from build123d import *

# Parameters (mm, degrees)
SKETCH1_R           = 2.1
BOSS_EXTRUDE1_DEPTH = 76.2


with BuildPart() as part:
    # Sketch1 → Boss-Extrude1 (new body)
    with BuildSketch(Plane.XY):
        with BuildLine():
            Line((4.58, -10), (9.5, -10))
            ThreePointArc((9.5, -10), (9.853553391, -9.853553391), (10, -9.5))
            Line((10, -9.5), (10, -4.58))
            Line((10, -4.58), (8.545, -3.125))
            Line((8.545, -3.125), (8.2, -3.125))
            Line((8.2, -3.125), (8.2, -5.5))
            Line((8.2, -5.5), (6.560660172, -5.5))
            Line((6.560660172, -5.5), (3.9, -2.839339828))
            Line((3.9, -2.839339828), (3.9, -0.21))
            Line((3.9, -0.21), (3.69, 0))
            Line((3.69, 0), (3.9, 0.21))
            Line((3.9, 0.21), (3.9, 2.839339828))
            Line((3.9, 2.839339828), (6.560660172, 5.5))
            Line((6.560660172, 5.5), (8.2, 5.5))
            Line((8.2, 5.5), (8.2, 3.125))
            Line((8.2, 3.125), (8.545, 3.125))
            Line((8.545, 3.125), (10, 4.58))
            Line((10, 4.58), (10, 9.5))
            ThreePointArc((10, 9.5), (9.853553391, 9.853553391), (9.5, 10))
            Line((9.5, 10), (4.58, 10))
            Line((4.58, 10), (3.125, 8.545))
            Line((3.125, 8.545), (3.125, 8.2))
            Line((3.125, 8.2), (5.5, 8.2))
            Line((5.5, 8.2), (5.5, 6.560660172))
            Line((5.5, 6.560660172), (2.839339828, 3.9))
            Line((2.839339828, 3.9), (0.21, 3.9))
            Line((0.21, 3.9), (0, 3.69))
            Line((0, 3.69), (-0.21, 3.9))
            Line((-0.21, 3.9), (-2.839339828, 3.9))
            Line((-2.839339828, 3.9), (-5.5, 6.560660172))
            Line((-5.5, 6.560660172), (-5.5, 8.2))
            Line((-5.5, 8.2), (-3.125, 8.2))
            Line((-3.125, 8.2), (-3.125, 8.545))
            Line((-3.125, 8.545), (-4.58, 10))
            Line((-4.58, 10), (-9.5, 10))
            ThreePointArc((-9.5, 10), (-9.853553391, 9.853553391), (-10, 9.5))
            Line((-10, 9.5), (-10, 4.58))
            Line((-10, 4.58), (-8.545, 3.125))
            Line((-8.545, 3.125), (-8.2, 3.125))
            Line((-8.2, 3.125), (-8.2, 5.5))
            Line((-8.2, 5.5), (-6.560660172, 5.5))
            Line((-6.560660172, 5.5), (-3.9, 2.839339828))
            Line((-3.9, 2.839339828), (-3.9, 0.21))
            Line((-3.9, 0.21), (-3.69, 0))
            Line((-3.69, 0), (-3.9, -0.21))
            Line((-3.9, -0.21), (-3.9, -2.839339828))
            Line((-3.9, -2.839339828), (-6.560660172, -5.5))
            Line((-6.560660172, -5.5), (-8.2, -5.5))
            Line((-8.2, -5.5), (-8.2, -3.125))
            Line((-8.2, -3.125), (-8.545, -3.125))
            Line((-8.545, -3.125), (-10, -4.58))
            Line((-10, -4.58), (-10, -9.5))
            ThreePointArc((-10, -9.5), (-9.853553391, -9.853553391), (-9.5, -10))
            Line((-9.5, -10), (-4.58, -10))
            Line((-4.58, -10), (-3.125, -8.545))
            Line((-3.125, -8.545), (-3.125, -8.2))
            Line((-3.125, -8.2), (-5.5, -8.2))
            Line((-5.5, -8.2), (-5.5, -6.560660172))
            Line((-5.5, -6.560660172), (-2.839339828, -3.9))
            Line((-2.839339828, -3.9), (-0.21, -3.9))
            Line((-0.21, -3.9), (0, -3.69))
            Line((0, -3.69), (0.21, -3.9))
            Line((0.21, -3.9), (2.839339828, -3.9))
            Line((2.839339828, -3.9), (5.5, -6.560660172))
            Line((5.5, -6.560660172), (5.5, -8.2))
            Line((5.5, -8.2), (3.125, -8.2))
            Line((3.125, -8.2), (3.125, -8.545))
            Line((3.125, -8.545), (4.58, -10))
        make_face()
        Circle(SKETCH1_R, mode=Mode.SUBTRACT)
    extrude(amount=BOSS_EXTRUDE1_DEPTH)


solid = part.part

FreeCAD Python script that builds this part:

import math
import FreeCAD as App
import Part
import Sketcher
Q = App.Units.Quantity

doc = App.newDocument("Part")
body = doc.addObject("PartDesign::Body", "Body")

# Sketch on XY plane
sketch1 = body.newObject("Sketcher::SketchObject", "Sketch")
sketch1.AttachmentSupport = (doc.getObject("XY_Plane"), [""])
sketch1.MapMode = "FlatFace"
sketch1.addGeometry(Part.LineSegment(App.Vector(4.58, -10, 0), App.Vector(9.5, -10, 0)), False)
sketch1.addGeometry(Part.ArcOfCircle(Part.Circle(App.Vector(9.5, -9.5, 0), App.Vector(0, 0, 1), 0.5), math.radians(-90), math.radians(0)), False)
sketch1.addGeometry(Part.LineSegment(App.Vector(10, -9.5, 0), App.Vector(10, -4.58, 0)), False)
sketch1.addGeometry(Part.LineSegment(App.Vector(10, -4.58, 0), App.Vector(8.54, -3.12, 0)), False)
sketch1.addGeometry(Part.LineSegment(App.Vector(8.54, -3.12, 0), App.Vector(8.2, -3.12, 0)), False)
sketch1.addGeometry(Part.LineSegment(App.Vector(8.2, -3.12, 0), App.Vector(8.2, -5.5, 0)), False)
sketch1.addGeometry(Part.LineSegment(App.Vector(8.2, -5.5, 0), App.Vector(6.56, -5.5, 0)), False)
sketch1.addGeometry(Part.LineSegment(App.Vector(6.56, -5.5, 0), App.Vector(3.9, -2.84, 0)), False)
sketch1.addGeometry(Part.LineSegment(App.Vector(3.9, -2.84, 0), App.Vector(3.9, -0.21, 0)), False)
sketch1.addGeometry(Part.LineSegment(App.Vector(3.9, -0.21, 0), App.Vector(3.69, 0, 0)), False)
sketch1.addGeometry(Part.LineSegment(App.Vector(3.69, 0, 0), App.Vector(3.9, 0.21, 0)), False)
sketch1.addGeometry(Part.LineSegment(App.Vector(3.9, 0.21, 0), App.Vector(3.9, 2.84, 0)), False)
sketch1.addGeometry(Part.LineSegment(App.Vector(3.9, 2.84, 0), App.Vector(6.56, 5.5, 0)), False)
sketch1.addGeometry(Part.LineSegment(App.Vector(6.56, 5.5, 0), App.Vector(8.2, 5.5, 0)), False)
sketch1.addGeometry(Part.LineSegment(App.Vector(8.2, 5.5, 0), App.Vector(8.2, 3.12, 0)), False)
sketch1.addGeometry(Part.LineSegment(App.Vector(8.2, 3.12, 0), App.Vector(8.54, 3.12, 0)), False)
sketch1.addGeometry(Part.LineSegment(App.Vector(8.54, 3.12, 0), App.Vector(10, 4.58, 0)), False)
sketch1.addGeometry(Part.LineSegment(App.Vector(10, 4.58, 0), App.Vector(10, 9.5, 0)), False)
sketch1.addGeometry(Part.ArcOfCircle(Part.Circle(App.Vector(9.5, 9.5, 0), App.Vector(0, 0, 1), 0.5), math.radians(0), math.radians(90)), False)
sketch1.addGeometry(Part.LineSegment(App.Vector(9.5, 10, 0), App.Vector(4.58, 10, 0)), False)
sketch1.addGeometry(Part.LineSegment(App.Vector(4.58, 10, 0), App.Vector(3.12, 8.54, 0)), False)
sketch1.addGeometry(Part.LineSegment(App.Vector(3.12, 8.54, 0), App.Vector(3.12, 8.2, 0)), False)
sketch1.addGeometry(Part.LineSegment(App.Vector(3.12, 8.2, 0), App.Vector(5.5, 8.2, 0)), False)
sketch1.addGeometry(Part.LineSegment(App.Vector(5.5, 8.2, 0), App.Vector(5.5, 6.56, 0)), False)
sketch1.addGeometry(Part.LineSegment(App.Vector(5.5, 6.56, 0), App.Vector(2.84, 3.9, 0)), False)
sketch1.addGeometry(Part.LineSegment(App.Vector(2.84, 3.9, 0), App.Vector(0.21, 3.9, 0)), False)
sketch1.addGeometry(Part.LineSegment(App.Vector(0.21, 3.9, 0), App.Vector(0, 3.69, 0)), False)
sketch1.addGeometry(Part.LineSegment(App.Vector(0, 3.69, 0), App.Vector(-0.21, 3.9, 0)), False)
sketch1.addGeometry(Part.LineSegment(App.Vector(-0.21, 3.9, 0), App.Vector(-2.84, 3.9, 0)), False)
sketch1.addGeometry(Part.LineSegment(App.Vector(-2.84, 3.9, 0), App.Vector(-5.5, 6.56, 0)), False)
sketch1.addGeometry(Part.LineSegment(App.Vector(-5.5, 6.56, 0), App.Vector(-5.5, 8.2, 0)), False)
sketch1.addGeometry(Part.LineSegment(App.Vector(-5.5, 8.2, 0), App.Vector(-3.12, 8.2, 0)), False)
sketch1.addGeometry(Part.LineSegment(App.Vector(-3.12, 8.2, 0), App.Vector(-3.12, 8.54, 0)), False)
sketch1.addGeometry(Part.LineSegment(App.Vector(-3.12, 8.54, 0), App.Vector(-4.58, 10, 0)), False)
sketch1.addGeometry(Part.LineSegment(App.Vector(-4.58, 10, 0), App.Vector(-9.5, 10, 0)), False)
sketch1.addGeometry(Part.ArcOfCircle(Part.Circle(App.Vector(-9.5, 9.5, 0), App.Vector(0, 0, 1), 0.5), math.radians(90), math.radians(180)), False)
sketch1.addGeometry(Part.LineSegment(App.Vector(-10, 9.5, 0), App.Vector(-10, 4.58, 0)), False)
sketch1.addGeometry(Part.LineSegment(App.Vector(-10, 4.58, 0), App.Vector(-8.54, 3.12, 0)), False)
sketch1.addGeometry(Part.LineSegment(App.Vector(-8.54, 3.12, 0), App.Vector(-8.2, 3.12, 0)), False)
sketch1.addGeometry(Part.LineSegment(App.Vector(-8.2, 3.12, 0), App.Vector(-8.2, 5.5, 0)), False)
sketch1.addGeometry(Part.LineSegment(App.Vector(-8.2, 5.5, 0), App.Vector(-6.56, 5.5, 0)), False)
sketch1.addGeometry(Part.LineSegment(App.Vector(-6.56, 5.5, 0), App.Vector(-3.9, 2.84, 0)), False)
sketch1.addGeometry(Part.LineSegment(App.Vector(-3.9, 2.84, 0), App.Vector(-3.9, 0.21, 0)), False)
sketch1.addGeometry(Part.LineSegment(App.Vector(-3.9, 0.21, 0), App.Vector(-3.69, 0, 0)), False)
sketch1.addGeometry(Part.LineSegment(App.Vector(-3.69, 0, 0), App.Vector(-3.9, -0.21, 0)), False)
sketch1.addGeometry(Part.LineSegment(App.Vector(-3.9, -0.21, 0), App.Vector(-3.9, -2.84, 0)), False)
sketch1.addGeometry(Part.LineSegment(App.Vector(-3.9, -2.84, 0), App.Vector(-6.56, -5.5, 0)), False)
sketch1.addGeometry(Part.LineSegment(App.Vector(-6.56, -5.5, 0), App.Vector(-8.2, -5.5, 0)), False)
sketch1.addGeometry(Part.LineSegment(App.Vector(-8.2, -5.5, 0), App.Vector(-8.2, -3.12, 0)), False)
sketch1.addGeometry(Part.LineSegment(App.Vector(-8.2, -3.12, 0), App.Vector(-8.54, -3.12, 0)), False)
sketch1.addGeometry(Part.LineSegment(App.Vector(-8.54, -3.12, 0), App.Vector(-10, -4.58, 0)), False)
sketch1.addGeometry(Part.LineSegment(App.Vector(-10, -4.58, 0), App.Vector(-10, -9.5, 0)), False)
sketch1.addGeometry(Part.ArcOfCircle(Part.Circle(App.Vector(-9.5, -9.5, 0), App.Vector(0, 0, 1), 0.5), math.radians(180), math.radians(270)), False)
sketch1.addGeometry(Part.LineSegment(App.Vector(-9.5, -10, 0), App.Vector(-4.58, -10, 0)), False)
sketch1.addGeometry(Part.LineSegment(App.Vector(-4.58, -10, 0), App.Vector(-3.12, -8.54, 0)), False)
sketch1.addGeometry(Part.LineSegment(App.Vector(-3.12, -8.54, 0), App.Vector(-3.12, -8.2, 0)), False)
sketch1.addGeometry(Part.LineSegment(App.Vector(-3.12, -8.2, 0), App.Vector(-5.5, -8.2, 0)), False)
sketch1.addGeometry(Part.LineSegment(App.Vector(-5.5, -8.2, 0), App.Vector(-5.5, -6.56, 0)), False)
sketch1.addGeometry(Part.LineSegment(App.Vector(-5.5, -6.56, 0), App.Vector(-2.84, -3.9, 0)), False)
sketch1.addGeometry(Part.LineSegment(App.Vector(-2.84, -3.9, 0), App.Vector(-0.21, -3.9, 0)), False)
sketch1.addGeometry(Part.LineSegment(App.Vector(-0.21, -3.9, 0), App.Vector(0, -3.69, 0)), False)
sketch1.addGeometry(Part.LineSegment(App.Vector(0, -3.69, 0), App.Vector(0.21, -3.9, 0)), False)
sketch1.addGeometry(Part.LineSegment(App.Vector(0.21, -3.9, 0), App.Vector(2.84, -3.9, 0)), False)
sketch1.addGeometry(Part.LineSegment(App.Vector(2.84, -3.9, 0), App.Vector(5.5, -6.56, 0)), False)
sketch1.addGeometry(Part.LineSegment(App.Vector(5.5, -6.56, 0), App.Vector(5.5, -8.2, 0)), False)
sketch1.addGeometry(Part.LineSegment(App.Vector(5.5, -8.2, 0), App.Vector(3.12, -8.2, 0)), False)
sketch1.addGeometry(Part.LineSegment(App.Vector(3.12, -8.2, 0), App.Vector(3.12, -8.54, 0)), False)
sketch1.addGeometry(Part.LineSegment(App.Vector(3.12, -8.54, 0), App.Vector(4.58, -10, 0)), False)
sketch1.addGeometry(Part.Circle(App.Vector(0, 0, 0), App.Vector(0, 0, 1), 2.1), False)
sketch1.addConstraint(Sketcher.Constraint("Tangent", 0, 2, 1, 1))
sketch1.addConstraint(Sketcher.Constraint("Tangent", 1, 2, 2, 1))
sketch1.addConstraint(Sketcher.Constraint("Coincident", 2, 2, 3, 1))
sketch1.addConstraint(Sketcher.Constraint("Coincident", 3, 2, 4, 1))
sketch1.addConstraint(Sketcher.Constraint("Coincident", 4, 2, 5, 1))
sketch1.addConstraint(Sketcher.Constraint("Coincident", 5, 2, 6, 1))
sketch1.addConstraint(Sketcher.Constraint("Coincident", 6, 2, 7, 1))
sketch1.addConstraint(Sketcher.Constraint("Coincident", 7, 2, 8, 1))
sketch1.addConstraint(Sketcher.Constraint("Coincident", 8, 2, 9, 1))
sketch1.addConstraint(Sketcher.Constraint("Coincident", 9, 2, 10, 1))
sketch1.addConstraint(Sketcher.Constraint("Coincident", 10, 2, 11, 1))
sketch1.addConstraint(Sketcher.Constraint("Coincident", 11, 2, 12, 1))
sketch1.addConstraint(Sketcher.Constraint("Coincident", 12, 2, 13, 1))
sketch1.addConstraint(Sketcher.Constraint("Coincident", 13, 2, 14, 1))
sketch1.addConstraint(Sketcher.Constraint("Coincident", 14, 2, 15, 1))
sketch1.addConstraint(Sketcher.Constraint("Coincident", 15, 2, 16, 1))
sketch1.addConstraint(Sketcher.Constraint("Coincident", 16, 2, 17, 1))
sketch1.addConstraint(Sketcher.Constraint("Tangent", 17, 2, 18, 1))
sketch1.addConstraint(Sketcher.Constraint("Tangent", 18, 2, 19, 1))
sketch1.addConstraint(Sketcher.Constraint("Coincident", 19, 2, 20, 1))
sketch1.addConstraint(Sketcher.Constraint("Coincident", 20, 2, 21, 1))
sketch1.addConstraint(Sketcher.Constraint("Coincident", 21, 2, 22, 1))
sketch1.addConstraint(Sketcher.Constraint("Coincident", 22, 2, 23, 1))
sketch1.addConstraint(Sketcher.Constraint("Coincident", 23, 2, 24, 1))
sketch1.addConstraint(Sketcher.Constraint("Coincident", 24, 2, 25, 1))
sketch1.addConstraint(Sketcher.Constraint("Coincident", 25, 2, 26, 1))
sketch1.addConstraint(Sketcher.Constraint("Coincident", 26, 2, 27, 1))
sketch1.addConstraint(Sketcher.Constraint("Coincident", 27, 2, 28, 1))
sketch1.addConstraint(Sketcher.Constraint("Coincident", 28, 2, 29, 1))
sketch1.addConstraint(Sketcher.Constraint("Coincident", 29, 2, 30, 1))
sketch1.addConstraint(Sketcher.Constraint("Coincident", 30, 2, 31, 1))
sketch1.addConstraint(Sketcher.Constraint("Coincident", 31, 2, 32, 1))
sketch1.addConstraint(Sketcher.Constraint("Coincident", 32, 2, 33, 1))
sketch1.addConstraint(Sketcher.Constraint("Coincident", 33, 2, 34, 1))
sketch1.addConstraint(Sketcher.Constraint("Tangent", 34, 2, 35, 1))
sketch1.addConstraint(Sketcher.Constraint("Tangent", 35, 2, 36, 1))
sketch1.addConstraint(Sketcher.Constraint("Coincident", 36, 2, 37, 1))
sketch1.addConstraint(Sketcher.Constraint("Coincident", 37, 2, 38, 1))
sketch1.addConstraint(Sketcher.Constraint("Coincident", 38, 2, 39, 1))
sketch1.addConstraint(Sketcher.Constraint("Coincident", 39, 2, 40, 1))
sketch1.addConstraint(Sketcher.Constraint("Coincident", 40, 2, 41, 1))
sketch1.addConstraint(Sketcher.Constraint("Coincident", 41, 2, 42, 1))
sketch1.addConstraint(Sketcher.Constraint("Coincident", 42, 2, 43, 1))
sketch1.addConstraint(Sketcher.Constraint("Coincident", 43, 2, 44, 1))
sketch1.addConstraint(Sketcher.Constraint("Coincident", 44, 2, 45, 1))
sketch1.addConstraint(Sketcher.Constraint("Coincident", 45, 2, 46, 1))
sketch1.addConstraint(Sketcher.Constraint("Coincident", 46, 2, 47, 1))
sketch1.addConstraint(Sketcher.Constraint("Coincident", 47, 2, 48, 1))
sketch1.addConstraint(Sketcher.Constraint("Coincident", 48, 2, 49, 1))
sketch1.addConstraint(Sketcher.Constraint("Coincident", 49, 2, 50, 1))
sketch1.addConstraint(Sketcher.Constraint("Coincident", 50, 2, 51, 1))
sketch1.addConstraint(Sketcher.Constraint("Tangent", 51, 2, 52, 1))
sketch1.addConstraint(Sketcher.Constraint("Tangent", 52, 2, 53, 1))
sketch1.addConstraint(Sketcher.Constraint("Coincident", 53, 2, 54, 1))
sketch1.addConstraint(Sketcher.Constraint("Coincident", 54, 2, 55, 1))
sketch1.addConstraint(Sketcher.Constraint("Coincident", 55, 2, 56, 1))
sketch1.addConstraint(Sketcher.Constraint("Coincident", 56, 2, 57, 1))
sketch1.addConstraint(Sketcher.Constraint("Coincident", 57, 2, 58, 1))
sketch1.addConstraint(Sketcher.Constraint("Coincident", 58, 2, 59, 1))
sketch1.addConstraint(Sketcher.Constraint("Coincident", 59, 2, 60, 1))
sketch1.addConstraint(Sketcher.Constraint("Coincident", 60, 2, 61, 1))
sketch1.addConstraint(Sketcher.Constraint("Coincident", 61, 2, 62, 1))
sketch1.addConstraint(Sketcher.Constraint("Coincident", 62, 2, 63, 1))
sketch1.addConstraint(Sketcher.Constraint("Coincident", 63, 2, 64, 1))
sketch1.addConstraint(Sketcher.Constraint("Coincident", 64, 2, 65, 1))
sketch1.addConstraint(Sketcher.Constraint("Coincident", 65, 2, 66, 1))
sketch1.addConstraint(Sketcher.Constraint("Coincident", 66, 2, 67, 1))
sketch1.addConstraint(Sketcher.Constraint("Coincident", 67, 2, 0, 1))
sketch1.addConstraint(Sketcher.Constraint("Horizontal", 0))
sketch1.addConstraint(Sketcher.Constraint("Vertical", 2))
sketch1.addConstraint(Sketcher.Constraint("Horizontal", 4))
sketch1.addConstraint(Sketcher.Constraint("Vertical", 5))
sketch1.addConstraint(Sketcher.Constraint("Horizontal", 6))
sketch1.addConstraint(Sketcher.Constraint("Vertical", 8))
sketch1.addConstraint(Sketcher.Constraint("Vertical", 11))
sketch1.addConstraint(Sketcher.Constraint("Horizontal", 13))
sketch1.addConstraint(Sketcher.Constraint("Vertical", 14))
sketch1.addConstraint(Sketcher.Constraint("Horizontal", 15))
sketch1.addConstraint(Sketcher.Constraint("Vertical", 17))
sketch1.addConstraint(Sketcher.Constraint("Horizontal", 19))
sketch1.addConstraint(Sketcher.Constraint("Vertical", 21))
sketch1.addConstraint(Sketcher.Constraint("Horizontal", 22))
sketch1.addConstraint(Sketcher.Constraint("Vertical", 23))
sketch1.addConstraint(Sketcher.Constraint("Horizontal", 25))
sketch1.addConstraint(Sketcher.Constraint("Horizontal", 28))
sketch1.addConstraint(Sketcher.Constraint("Vertical", 30))
sketch1.addConstraint(Sketcher.Constraint("Horizontal", 31))
sketch1.addConstraint(Sketcher.Constraint("Vertical", 32))
sketch1.addConstraint(Sketcher.Constraint("Horizontal", 34))
sketch1.addConstraint(Sketcher.Constraint("Vertical", 36))
sketch1.addConstraint(Sketcher.Constraint("Horizontal", 38))
sketch1.addConstraint(Sketcher.Constraint("Vertical", 39))
sketch1.addConstraint(Sketcher.Constraint("Horizontal", 40))
sketch1.addConstraint(Sketcher.Constraint("Vertical", 42))
sketch1.addConstraint(Sketcher.Constraint("Vertical", 45))
sketch1.addConstraint(Sketcher.Constraint("Horizontal", 47))
sketch1.addConstraint(Sketcher.Constraint("Vertical", 48))
sketch1.addConstraint(Sketcher.Constraint("Horizontal", 49))
sketch1.addConstraint(Sketcher.Constraint("Vertical", 51))
sketch1.addConstraint(Sketcher.Constraint("Horizontal", 53))
sketch1.addConstraint(Sketcher.Constraint("Vertical", 55))
sketch1.addConstraint(Sketcher.Constraint("Horizontal", 56))
sketch1.addConstraint(Sketcher.Constraint("Vertical", 57))
sketch1.addConstraint(Sketcher.Constraint("Horizontal", 59))
sketch1.addConstraint(Sketcher.Constraint("Horizontal", 62))
sketch1.addConstraint(Sketcher.Constraint("Vertical", 64))
sketch1.addConstraint(Sketcher.Constraint("Horizontal", 65))
sketch1.addConstraint(Sketcher.Constraint("Vertical", 66))
sketch1.addConstraint(Sketcher.Constraint("Coincident", 68, 3, -1, 1))
sketch1.addConstraint(Sketcher.Constraint("Equal", 1, 18))
sketch1.addConstraint(Sketcher.Constraint("Equal", 18, 35))
sketch1.addConstraint(Sketcher.Constraint("Equal", 35, 52))
sketch1.addConstraint(Sketcher.Constraint("Symmetric", 1, 3, 35, 3, -1, 1))
sketch1.addConstraint(Sketcher.Constraint("Symmetric", 18, 3, 52, 3, -1, 1))
sketch1.addConstraint(Sketcher.Constraint("Symmetric", 3, 2, 37, 2, -1, 1))
sketch1.addConstraint(Sketcher.Constraint("Symmetric", 5, 2, 39, 2, -1, 1))
sketch1.addConstraint(Sketcher.Constraint("Symmetric", 7, 2, 41, 2, -1, 1))
sketch1.addConstraint(Sketcher.Constraint("Symmetric", 9, 2, 43, 2, -1, 1))
sketch1.addConstraint(Sketcher.Constraint("Symmetric", 10, 2, 44, 2, -1, 1))
sketch1.addConstraint(Sketcher.Constraint("Symmetric", 12, 2, 46, 2, -1, 1))
sketch1.addConstraint(Sketcher.Constraint("Symmetric", 14, 2, 48, 2, -1, 1))
sketch1.addConstraint(Sketcher.Constraint("Symmetric", 20, 2, 54, 2, -1, 1))
sketch1.addConstraint(Sketcher.Constraint("Symmetric", 22, 2, 56, 2, -1, 1))
sketch1.addConstraint(Sketcher.Constraint("Symmetric", 24, 2, 58, 2, -1, 1))
sketch1.addConstraint(Sketcher.Constraint("Symmetric", 26, 2, 60, 2, -1, 1))
sketch1.addConstraint(Sketcher.Constraint("Symmetric", 27, 2, 61, 2, -1, 1))
sketch1.addConstraint(Sketcher.Constraint("Symmetric", 29, 2, 63, 2, -1, 1))
sketch1.addConstraint(Sketcher.Constraint("Symmetric", 31, 2, 65, 2, -1, 1))
sketch1.addConstraint(Sketcher.Constraint("Symmetric", 18, 3, 35, 3, -2))
sketch1.addConstraint(Sketcher.Constraint("Symmetric", 25, 2, 27, 2, -2))
sketch1.addConstraint(Sketcher.Constraint("Symmetric", 23, 2, 29, 2, -2))
sketch1.addConstraint(Sketcher.Constraint("Symmetric", 21, 2, 31, 2, -2))
sketch1.addConstraint(Sketcher.Constraint("Symmetric", 15, 2, 37, 2, -2))
sketch1.addConstraint(Sketcher.Constraint("Symmetric", 13, 2, 39, 2, -2))
sketch1.addConstraint(Sketcher.Constraint("Symmetric", 11, 2, 41, 2, -2))
sketch1.addConstraint(Sketcher.Constraint("PointOnObject", 9, 2, -1))
sketch1.addConstraint(Sketcher.Constraint("PointOnObject", 26, 2, -2))
sketch1.addConstraint(Sketcher.Constraint("Parallel", 3, 7))
sketch1.addConstraint(Sketcher.Constraint("Parallel", 7, 9))
sketch1.addConstraint(Sketcher.Constraint("Perpendicular", 9, 10))
sketch1.addConstraint(Sketcher.Constraint("Parallel", 10, 12))
sketch1.addConstraint(Sketcher.Constraint("Parallel", 12, 16))
sketch1.addConstraint(Sketcher.Constraint("Parallel", 16, 20))
sketch1.addConstraint(Sketcher.Constraint("Parallel", 20, 24))
sketch1.addConstraint(Sketcher.Constraint("Parallel", 24, 26))
sketch1.addConstraint(Sketcher.Constraint("Perpendicular", 26, 27))
sketch1.addConstraint(Sketcher.Constraint("Parallel", 27, 29))
sketch1.addConstraint(Sketcher.Constraint("Parallel", 29, 33))
sketch1.addConstraint(Sketcher.Constraint("Parallel", 33, 37))
sketch1.addConstraint(Sketcher.Constraint("Parallel", 37, 41))
sketch1.addConstraint(Sketcher.Constraint("Parallel", 41, 43))
sketch1.addConstraint(Sketcher.Constraint("Parallel", 44, 46))
sketch1.addConstraint(Sketcher.Constraint("Parallel", 46, 50))
sketch1.addConstraint(Sketcher.Constraint("Parallel", 50, 54))
sketch1.addConstraint(Sketcher.Constraint("Parallel", 54, 58))
sketch1.addConstraint(Sketcher.Constraint("Parallel", 58, 60))
sketch1.addConstraint(Sketcher.Constraint("Parallel", 61, 63))
sketch1.addConstraint(Sketcher.Constraint("Parallel", 63, 67))
sketch1.addConstraint(Sketcher.Constraint("Horizontal", 20, 2, 32, 2))
sketch1.addConstraint(Sketcher.Constraint("Horizontal", 2, 2, 50, 2))
sketch1.addConstraint(Sketcher.Constraint("Horizontal", 54, 2, 66, 2))
sketch1.addConstraint(Sketcher.Constraint("Equal", 53, 2))
sketch1.addConstraint(Sketcher.Constraint("Equal", 65, 5))
sketch1.addConstraint(Sketcher.Constraint("Equal", 62, 8))
sketch1.addConstraint(Sketcher.Constraint("Equal", 49, 21))
sketch1.addConstraint(Sketcher.Constraint("Equal", 47, 23))
sketch1.addConstraint(Sketcher.Constraint("Equal", 16, 20))
sketch1.addConstraint(Sketcher.Constraint("Equal", 12, 24))
sketch1.addConstraint(Sketcher.Constraint("Equal", 10, 26))
sketch1.addConstraint(Sketcher.Constraint("Diameter", 68, Q("4.2 mm")))
sketch1.addConstraint(Sketcher.Constraint("Radius", 1, Q("0.5 mm")))
sketch1.addConstraint(Sketcher.Constraint("DistanceY", 0, 2, -1, 1, Q("10 mm")))
sketch1.addConstraint(Sketcher.Constraint("DistanceX", 0, 1, 0, 2, Q("4.92 mm")))
sketch1.addConstraint(Sketcher.Constraint("DistanceX", -1, 1, 4, 2, Q("8.2 mm")))
sketch1.addConstraint(Sketcher.Constraint("DistanceY", 5, 2, -1, 1, Q("5.5 mm")))
sketch1.addConstraint(Sketcher.Constraint("DistanceX", -1, 1, 7, 2, Q("3.9 mm")))
sketch1.addConstraint(Sketcher.Constraint("DistanceX", 4, 2, 4, 1, Q("0.345 mm")))
sketch1.addConstraint(Sketcher.Constraint("DistanceY", 8, 2, -1, 1, Q("0.21 mm")))
sketch1.addConstraint(Sketcher.Constraint("DistanceX", 6, 2, 6, 1, Q("1.63934 mm")))
pad1 = body.newObject("PartDesign::Pad", "Pad")
pad1.Profile = sketch1
pad1.Length = 76.2

doc.recompute()
